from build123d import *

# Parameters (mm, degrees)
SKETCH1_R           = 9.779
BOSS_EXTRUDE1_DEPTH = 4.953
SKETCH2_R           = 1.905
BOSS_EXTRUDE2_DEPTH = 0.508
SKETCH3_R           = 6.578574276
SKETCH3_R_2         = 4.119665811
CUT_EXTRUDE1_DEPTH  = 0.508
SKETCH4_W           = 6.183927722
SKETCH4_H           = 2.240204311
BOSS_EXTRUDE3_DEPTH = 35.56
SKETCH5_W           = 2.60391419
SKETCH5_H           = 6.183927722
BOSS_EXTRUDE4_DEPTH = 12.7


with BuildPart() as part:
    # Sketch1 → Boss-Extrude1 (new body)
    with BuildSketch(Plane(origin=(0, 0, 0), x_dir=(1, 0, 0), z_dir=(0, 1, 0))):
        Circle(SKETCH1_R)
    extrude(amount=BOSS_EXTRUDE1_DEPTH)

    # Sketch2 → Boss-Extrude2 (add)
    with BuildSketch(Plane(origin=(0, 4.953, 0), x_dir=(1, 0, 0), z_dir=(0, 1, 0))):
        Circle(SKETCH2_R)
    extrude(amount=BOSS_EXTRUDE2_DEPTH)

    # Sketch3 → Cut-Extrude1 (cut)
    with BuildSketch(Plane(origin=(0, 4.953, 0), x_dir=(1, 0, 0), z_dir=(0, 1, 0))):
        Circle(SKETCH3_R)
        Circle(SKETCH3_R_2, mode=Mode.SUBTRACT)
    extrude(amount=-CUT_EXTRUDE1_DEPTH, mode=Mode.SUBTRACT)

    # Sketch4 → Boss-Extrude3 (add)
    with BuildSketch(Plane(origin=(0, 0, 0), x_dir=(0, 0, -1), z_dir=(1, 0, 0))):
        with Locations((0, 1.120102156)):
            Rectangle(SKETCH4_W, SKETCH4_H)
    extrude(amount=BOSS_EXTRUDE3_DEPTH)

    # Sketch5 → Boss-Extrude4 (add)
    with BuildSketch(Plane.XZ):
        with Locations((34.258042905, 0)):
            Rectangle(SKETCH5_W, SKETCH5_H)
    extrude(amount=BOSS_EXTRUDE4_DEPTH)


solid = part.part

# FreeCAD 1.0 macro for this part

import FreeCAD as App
import Part
import Sketcher

V = App.Vector
Q = App.Units.Quantity


def add_polygon(sketch, points):
    """Adds a closed chain of lines whose ends are joined by coincident constraints."""
    first, n = sketch.GeometryCount, len(points)
    for a, b in zip(points, points[1:] + points[:1]):
        sketch.addGeometry(Part.LineSegment(App.Vector(*a, 0), App.Vector(*b, 0)), False)
    for i in range(n):
        sketch.addConstraint(Sketcher.Constraint("Coincident", first + i, 2, first + (i + 1) % n, 1))

doc = App.newDocument("Part")
body = doc.addObject("PartDesign::Body", "Body")

# Sketch on XZ plane
sketch1 = doc.addObject("Sketcher::SketchObject", "Sketch")
body.addObject(sketch1)
sketch1.AttachmentSupport = (doc.XZ_Plane, [""])
sketch1.MapMode = "FlatFace"
sketch1.addGeometry(Part.Circle(V(0, 0, 0), V(0, 0, 1), 9.779), False)
sketch1.addConstraint(Sketcher.Constraint("Coincident", 0, 3, -1, 1))
sketch1.addConstraint(Sketcher.Constraint("Diameter", 0, Q("0.77 in")))
pad1 = doc.addObject("PartDesign::Pad", "Pad")
body.addObject(pad1)
pad1.Profile = sketch1
pad1.Length = Q("0.195 in")
pad1.Reversed = True

# Sketch on XZ plane
sketch2 = doc.addObject("Sketcher::SketchObject", "Sketch001")
body.addObject(sketch2)
sketch2.AttachmentSupport = (doc.XZ_Plane, [""])
sketch2.MapMode = "FlatFace"
sketch2.AttachmentOffset = App.Placement(V(0, 0, -0.195 * 25.4), App.Rotation())
sketch2.addGeometry(Part.Circle(V(0, 0, 0), V(0, 0, 1), 1.905), False)
sketch2.addConstraint(Sketcher.Constraint("Coincident", 0, 3, -1, 1))
sketch2.addConstraint(Sketcher.Constraint("Diameter", 0, Q("0.15 in")))
pad2 = doc.addObject("PartDesign::Pad", "Pad001")
body.addObject(pad2)
pad2.Profile = sketch2
pad2.Length = Q("0.02 in")
pad2.Reversed = True

# Sketch on XZ plane
sketch3 = doc.addObject("Sketcher::SketchObject", "Sketch002")
body.addObject(sketch3)
sketch3.AttachmentSupport = (doc.XZ_Plane, [""])
sketch3.MapMode = "FlatFace"
sketch3.AttachmentOffset = App.Placement(V(0, 0, -0.195 * 25.4), App.Rotation())
sketch3.addGeometry(Part.Circle(V(0, 0, 0), V(0, 0, 1), 6.578574), False)
sketch3.addGeometry(Part.Circle(V(0, 0, 0), V(0, 0, 1), 4.119666), False)
sketch3.addConstraint(Sketcher.Constraint("Coincident", 0, 3, -1, 1))
sketch3.addConstraint(Sketcher.Constraint("Coincident", 1, 3, -1, 1))
sketch3.addConstraint(Sketcher.Constraint("Diameter", 0, 13.157149))
sketch3.addConstraint(Sketcher.Constraint("Diameter", 1, 8.239332))
pocket1 = doc.addObject("PartDesign::Pocket", "Pocket")
body.addObject(pocket1)
pocket1.Profile = sketch3
pocket1.Length = Q("0.02 in")
pocket1.Reversed = True

# Sketch on YZ plane
sketch4 = doc.addObject("Sketcher::SketchObject", "Sketch003")
body.addObject(sketch4)
sketch4.AttachmentSupport = (doc.YZ_Plane, [""])
sketch4.MapMode = "FlatFace"
add_polygon(sketch4, [(2.240204, 3.091964), (0, 3.091964), (0, -3.091964), (2.240204, -3.091964)])  # lines 0-3
sketch4.addConstraint(Sketcher.Constraint("Horizontal", 0))
sketch4.addConstraint(Sketcher.Constraint("Vertical", 1))
sketch4.addConstraint(Sketcher.Constraint("Horizontal", 2))
sketch4.addConstraint(Sketcher.Constraint("Vertical", 3))
sketch4.addConstraint(Sketcher.Constraint("Symmetric", 0, 2, 1, 2, -1, 1))
sketch4.addConstraint(Sketcher.Constraint("DistanceX", 0, 2, 0, 1, 2.240204))
sketch4.addConstraint(Sketcher.Constraint("DistanceY", 1, 2, 1, 1, 6.183928))
pad3 = doc.addObject("PartDesign::Pad", "Pad002")
body.addObject(pad3)
pad3.Profile = sketch4
pad3.Length = Q("1.4 in")

# Sketch on XZ plane
sketch5 = doc.addObject("Sketcher::SketchObject", "Sketch004")
body.addObject(sketch5)
sketch5.AttachmentSupport = (doc.XZ_Plane, [""])
sketch5.MapMode = "FlatFace"
add_polygon(sketch5, [(32.956086, 3.091964), (32.956086, -3.091964), (35.56, -3.091964), (35.56, 3.091964)])  # lines 0-3
sketch5.addConstraint(Sketcher.Constraint("Vertical", 0))
sketch5.addConstraint(Sketcher.Constraint("Horizontal", 1))
sketch5.addConstraint(Sketcher.Constraint("Vertical", 2))
sketch5.addConstraint(Sketcher.Constraint("Horizontal", 3))
sketch5.addConstraint(Sketcher.Constraint("DistanceX", -1, 1, 1, 2, Q("1.4 in")))
sketch5.addConstraint(Sketcher.Constraint("DistanceX", 1, 1, 1, 2, 2.603914))
sketch5.addConstraint(Sketcher.Constraint("DistanceY", 0, 2, 0, 1, 6.183928))
sketch5.addConstraint(Sketcher.Constraint("DistanceY", 0, 2, -1, 1, 3.091964))
pad4 = doc.addObject("PartDesign::Pad", "Pad003")
body.addObject(pad4)
pad4.Profile = sketch5
pad4.Length = Q("0.5 in")

doc.recompute()
